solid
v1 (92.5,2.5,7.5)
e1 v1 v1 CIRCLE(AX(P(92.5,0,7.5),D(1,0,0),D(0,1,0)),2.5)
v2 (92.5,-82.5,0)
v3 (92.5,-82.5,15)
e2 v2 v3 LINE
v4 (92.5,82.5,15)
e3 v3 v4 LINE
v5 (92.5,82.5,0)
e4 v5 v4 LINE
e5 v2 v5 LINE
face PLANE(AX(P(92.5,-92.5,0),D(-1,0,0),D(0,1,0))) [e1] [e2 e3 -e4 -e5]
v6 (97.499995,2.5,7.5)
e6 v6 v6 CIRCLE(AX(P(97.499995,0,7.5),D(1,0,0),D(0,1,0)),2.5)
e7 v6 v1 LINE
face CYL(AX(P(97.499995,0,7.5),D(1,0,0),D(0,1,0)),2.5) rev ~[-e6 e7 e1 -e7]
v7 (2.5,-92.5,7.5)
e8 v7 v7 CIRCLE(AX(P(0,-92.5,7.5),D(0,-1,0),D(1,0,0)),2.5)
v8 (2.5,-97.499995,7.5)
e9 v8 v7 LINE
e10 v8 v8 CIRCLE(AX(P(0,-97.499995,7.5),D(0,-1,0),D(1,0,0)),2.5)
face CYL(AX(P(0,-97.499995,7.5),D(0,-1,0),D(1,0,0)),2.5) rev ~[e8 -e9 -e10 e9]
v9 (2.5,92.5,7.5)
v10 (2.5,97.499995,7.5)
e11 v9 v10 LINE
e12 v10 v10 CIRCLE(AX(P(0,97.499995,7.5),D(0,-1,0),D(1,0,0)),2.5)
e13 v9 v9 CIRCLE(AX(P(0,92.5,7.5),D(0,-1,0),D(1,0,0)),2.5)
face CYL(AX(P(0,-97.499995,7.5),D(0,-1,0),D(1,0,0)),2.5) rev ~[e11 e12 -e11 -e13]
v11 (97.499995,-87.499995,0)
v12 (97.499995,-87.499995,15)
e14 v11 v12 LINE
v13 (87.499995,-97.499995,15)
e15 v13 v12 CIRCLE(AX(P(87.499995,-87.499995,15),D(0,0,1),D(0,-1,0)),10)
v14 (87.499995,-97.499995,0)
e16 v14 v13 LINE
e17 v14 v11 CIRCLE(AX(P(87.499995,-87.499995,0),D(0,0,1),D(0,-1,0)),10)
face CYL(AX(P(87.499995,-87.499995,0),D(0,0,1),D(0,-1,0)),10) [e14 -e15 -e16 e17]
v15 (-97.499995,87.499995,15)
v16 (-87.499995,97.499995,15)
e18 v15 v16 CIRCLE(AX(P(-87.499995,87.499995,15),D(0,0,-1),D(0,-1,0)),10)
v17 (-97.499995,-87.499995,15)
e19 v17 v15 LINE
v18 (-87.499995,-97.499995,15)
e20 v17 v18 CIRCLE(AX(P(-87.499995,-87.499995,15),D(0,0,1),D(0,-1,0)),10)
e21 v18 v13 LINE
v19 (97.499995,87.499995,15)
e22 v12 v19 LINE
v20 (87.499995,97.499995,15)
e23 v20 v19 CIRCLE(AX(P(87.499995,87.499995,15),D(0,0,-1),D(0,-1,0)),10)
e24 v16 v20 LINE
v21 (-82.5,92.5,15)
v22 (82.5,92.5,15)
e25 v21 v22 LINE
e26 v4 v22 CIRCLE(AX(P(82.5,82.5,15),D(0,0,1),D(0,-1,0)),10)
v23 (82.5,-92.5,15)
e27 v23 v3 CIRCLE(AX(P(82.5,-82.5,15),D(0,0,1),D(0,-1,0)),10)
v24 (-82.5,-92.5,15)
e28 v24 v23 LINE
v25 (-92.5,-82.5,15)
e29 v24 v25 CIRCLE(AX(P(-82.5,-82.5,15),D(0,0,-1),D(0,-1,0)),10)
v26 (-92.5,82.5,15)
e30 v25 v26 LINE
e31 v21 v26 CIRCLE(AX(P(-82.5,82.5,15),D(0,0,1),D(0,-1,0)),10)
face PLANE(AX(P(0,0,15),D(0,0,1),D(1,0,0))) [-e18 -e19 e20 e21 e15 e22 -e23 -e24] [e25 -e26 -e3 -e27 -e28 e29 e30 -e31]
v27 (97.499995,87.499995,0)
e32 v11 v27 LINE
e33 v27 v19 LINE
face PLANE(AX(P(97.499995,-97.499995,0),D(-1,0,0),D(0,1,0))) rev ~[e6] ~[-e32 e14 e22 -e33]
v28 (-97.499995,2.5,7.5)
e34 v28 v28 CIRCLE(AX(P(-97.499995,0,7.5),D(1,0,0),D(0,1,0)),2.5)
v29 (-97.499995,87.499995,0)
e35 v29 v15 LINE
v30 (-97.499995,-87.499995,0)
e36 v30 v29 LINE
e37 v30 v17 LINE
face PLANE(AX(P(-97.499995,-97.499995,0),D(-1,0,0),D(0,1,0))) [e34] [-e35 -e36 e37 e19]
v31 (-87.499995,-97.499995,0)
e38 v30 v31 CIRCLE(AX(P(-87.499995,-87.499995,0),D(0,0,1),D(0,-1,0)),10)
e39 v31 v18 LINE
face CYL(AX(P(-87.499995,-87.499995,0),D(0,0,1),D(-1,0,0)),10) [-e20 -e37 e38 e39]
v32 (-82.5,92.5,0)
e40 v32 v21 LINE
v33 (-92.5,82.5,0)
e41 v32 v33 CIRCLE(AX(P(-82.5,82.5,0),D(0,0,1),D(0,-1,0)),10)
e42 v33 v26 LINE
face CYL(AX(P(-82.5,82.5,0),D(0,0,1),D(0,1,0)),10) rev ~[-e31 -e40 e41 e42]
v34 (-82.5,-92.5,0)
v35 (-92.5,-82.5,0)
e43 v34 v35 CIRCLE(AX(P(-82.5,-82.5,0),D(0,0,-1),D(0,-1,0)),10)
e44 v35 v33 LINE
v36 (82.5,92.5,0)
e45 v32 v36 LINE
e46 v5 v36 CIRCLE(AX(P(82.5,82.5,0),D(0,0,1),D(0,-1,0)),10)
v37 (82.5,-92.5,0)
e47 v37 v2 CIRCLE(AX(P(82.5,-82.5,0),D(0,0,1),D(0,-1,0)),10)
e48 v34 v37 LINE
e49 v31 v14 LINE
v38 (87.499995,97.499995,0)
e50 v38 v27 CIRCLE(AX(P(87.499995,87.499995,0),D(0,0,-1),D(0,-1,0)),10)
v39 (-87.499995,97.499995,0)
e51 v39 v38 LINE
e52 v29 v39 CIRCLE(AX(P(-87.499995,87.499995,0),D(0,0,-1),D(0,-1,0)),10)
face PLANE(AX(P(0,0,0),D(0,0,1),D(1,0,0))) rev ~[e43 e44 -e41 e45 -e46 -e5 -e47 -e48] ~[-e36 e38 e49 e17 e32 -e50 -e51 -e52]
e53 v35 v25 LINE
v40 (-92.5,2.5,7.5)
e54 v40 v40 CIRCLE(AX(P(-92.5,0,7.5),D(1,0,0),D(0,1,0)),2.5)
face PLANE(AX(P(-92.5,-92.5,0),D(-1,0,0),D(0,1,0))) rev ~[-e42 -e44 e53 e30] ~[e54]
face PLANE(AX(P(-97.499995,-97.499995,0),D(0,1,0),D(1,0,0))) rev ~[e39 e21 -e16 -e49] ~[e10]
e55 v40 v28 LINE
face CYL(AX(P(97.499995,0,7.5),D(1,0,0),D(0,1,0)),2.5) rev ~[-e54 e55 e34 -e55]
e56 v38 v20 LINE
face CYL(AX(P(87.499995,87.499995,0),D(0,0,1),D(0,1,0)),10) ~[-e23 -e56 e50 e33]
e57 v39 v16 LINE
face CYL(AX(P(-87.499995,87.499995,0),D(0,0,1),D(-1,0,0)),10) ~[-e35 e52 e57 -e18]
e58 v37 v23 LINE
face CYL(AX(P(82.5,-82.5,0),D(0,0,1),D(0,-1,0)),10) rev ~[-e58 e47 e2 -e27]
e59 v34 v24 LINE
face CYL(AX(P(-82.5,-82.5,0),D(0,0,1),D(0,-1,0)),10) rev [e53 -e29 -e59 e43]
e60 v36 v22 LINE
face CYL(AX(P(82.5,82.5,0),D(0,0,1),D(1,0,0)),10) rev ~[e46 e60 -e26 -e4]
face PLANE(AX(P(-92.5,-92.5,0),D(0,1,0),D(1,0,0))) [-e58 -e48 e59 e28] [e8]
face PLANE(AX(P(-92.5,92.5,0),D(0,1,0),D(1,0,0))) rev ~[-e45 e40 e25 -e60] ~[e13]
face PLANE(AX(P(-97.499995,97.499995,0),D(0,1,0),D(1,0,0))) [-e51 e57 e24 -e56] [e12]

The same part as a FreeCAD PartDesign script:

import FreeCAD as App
import Part
import Sketcher

V = App.Vector
Q = App.Units.Quantity


def edges_at(feature, points):
    """Names of the edges that pass closest to the given points."""
    edges = feature.Shape.Edges
    near = lambda p: min(range(len(edges)), key=lambda i: edges[i].distToShape(Part.Vertex(*p))[0])
    return sorted({f"Edge{near(p) + 1}" for p in points})


def add_polygon(sketch, points):
    """Adds a closed chain of lines whose ends are joined by coincident constraints."""
    first, n = sketch.GeometryCount, len(points)
    for a, b in zip(points, points[1:] + points[:1]):
        sketch.addGeometry(Part.LineSegment(App.Vector(*a, 0), App.Vector(*b, 0)), False)
    for i in range(n):
        sketch.addConstraint(Sketcher.Constraint("Coincident", first + i, 2, first + (i + 1) % n, 1))

doc = App.newDocument("Part")
body = doc.addObject("PartDesign::Body", "Body")

sketch1 = doc.addObject("Sketcher::SketchObject", "Sketch")
body.addObject(sketch1)
sketch1.AttachmentSupport = (doc.XY_Plane, [""])
sketch1.MapMode = "FlatFace"
add_polygon(sketch1, [(-97.499995, 97.499995), (-97.499995, -97.499995), (97.499995, -97.499995), (97.499995, 97.499995)])
add_polygon(sketch1, [(92.5, -92.5), (-92.5, -92.5), (-92.5, 92.5), (92.5, 92.5)])
sketch1.addConstraint(Sketcher.Constraint("Vertical", 0))
sketch1.addConstraint(Sketcher.Constraint("Horizontal", 1))
sketch1.addConstraint(Sketcher.Constraint("Vertical", 2))
sketch1.addConstraint(Sketcher.Constraint("Horizontal", 3))
sketch1.addConstraint(Sketcher.Constraint("Horizontal", 4))
sketch1.addConstraint(Sketcher.Constraint("Vertical", 5))
sketch1.addConstraint(Sketcher.Constraint("Horizontal", 6))
sketch1.addConstraint(Sketcher.Constraint("Vertical", 7))
sketch1.addConstraint(Sketcher.Constraint("Symmetric", 0, 2, 2, 2, -1, 1))
sketch1.addConstraint(Sketcher.Constraint("Symmetric", 4, 2, 6, 2, -1, 1))
sketch1.addConstraint(Sketcher.Constraint("Equal", 3, 0))
sketch1.addConstraint(Sketcher.Constraint("Equal", 6, 5))
sketch1.addConstraint(Sketcher.Constraint("DistanceX", 4, 2, 4, 1, Q("185 mm")))
sketch1.addConstraint(Sketcher.Constraint("DistanceX", 1, 1, 1, 2, Q("194.99999 mm")))
pad1 = doc.addObject("PartDesign::Pad", "Pad")
body.addObject(pad1)
pad1.Profile = sketch1
pad1.Length = 15
doc.recompute()

fillet = doc.addObject("PartDesign::Fillet", "Fillet")
body.addObject(fillet)
fillet.Base = (pad1, edges_at(pad1, [
    (-97.5, -97.5, 7.5),
    (97.5, -97.5, 7.5),
    (92.5, 92.5, 7.5),
    (-97.5, 97.5, 7.5),
    (97.5, 97.5, 7.5),
    (92.5, -92.5, 7.5),
    (-92.5, -92.5, 7.5),
    (-92.5, 92.5, 7.5),
]))
fillet.Radius = 10

sketch2 = doc.addObject("Sketcher::SketchObject", "Sketch001")
body.addObject(sketch2)
sketch2.AttachmentSupport = (doc.YZ_Plane, [""])
sketch2.MapMode = "FlatFace"
sketch2.AttachmentOffset = App.Placement(V(0, 0, 97.499995), App.Rotation())
sketch2.addGeometry(Part.Circle(V(0, 7.5, 0), V(0, 0, 1), 2.5), False)
sketch2.addConstraint(Sketcher.Constraint("PointOnObject", 0, 3, -2))
sketch2.addConstraint(Sketcher.Constraint("Diameter", 0, Q("5 mm")))
sketch2.addConstraint(Sketcher.Constraint("DistanceY", -1, 1, 0, 3, Q("7.5 mm")))
pocket1 = doc.addObject("PartDesign::Pocket", "Pocket")
body.addObject(pocket1)
pocket1.Profile = sketch2
pocket1.Type = "ThroughAll"

sketch3 = doc.addObject("Sketcher::SketchObject", "Sketch002")
body.addObject(sketch3)
sketch3.AttachmentSupport = (doc.XZ_Plane, [""])
sketch3.MapMode = "FlatFace"
sketch3.AttachmentOffset = App.Placement(V(0, 0, 97.499995), App.Rotation())
sketch3.addGeometry(Part.Circle(V(0, 7.5, 0), V(0, 0, 1), 2.5), False)
sketch3.addConstraint(Sketcher.Constraint("PointOnObject", 0, 3, -2))
sketch3.addConstraint(Sketcher.Constraint("Diameter", 0, Q("5 mm")))
sketch3.addConstraint(Sketcher.Constraint("DistanceY", -1, 1, 0, 3, Q("7.5 mm")))
pocket2 = doc.addObject("PartDesign::Pocket", "Pocket001")
body.addObject(pocket2)
pocket2.Profile = sketch3
pocket2.Type = "ThroughAll"

doc.recompute()
